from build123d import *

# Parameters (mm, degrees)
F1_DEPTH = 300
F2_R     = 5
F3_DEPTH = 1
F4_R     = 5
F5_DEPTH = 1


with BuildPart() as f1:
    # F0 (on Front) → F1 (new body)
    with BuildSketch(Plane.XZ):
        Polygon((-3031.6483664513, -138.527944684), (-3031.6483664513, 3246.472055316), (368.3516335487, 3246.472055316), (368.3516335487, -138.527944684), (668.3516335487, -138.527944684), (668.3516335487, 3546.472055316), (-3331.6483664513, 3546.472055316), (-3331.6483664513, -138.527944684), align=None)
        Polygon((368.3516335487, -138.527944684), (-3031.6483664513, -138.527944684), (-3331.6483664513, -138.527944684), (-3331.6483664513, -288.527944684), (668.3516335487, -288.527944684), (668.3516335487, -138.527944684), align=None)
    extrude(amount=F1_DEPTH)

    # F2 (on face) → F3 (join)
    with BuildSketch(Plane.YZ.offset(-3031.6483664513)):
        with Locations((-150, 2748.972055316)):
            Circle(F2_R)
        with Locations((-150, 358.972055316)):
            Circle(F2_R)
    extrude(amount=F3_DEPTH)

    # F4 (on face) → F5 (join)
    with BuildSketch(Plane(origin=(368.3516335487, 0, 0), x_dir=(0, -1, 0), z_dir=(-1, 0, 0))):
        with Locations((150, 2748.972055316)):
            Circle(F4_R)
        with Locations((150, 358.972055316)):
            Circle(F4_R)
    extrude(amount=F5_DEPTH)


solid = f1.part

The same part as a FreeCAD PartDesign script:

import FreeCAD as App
import Part
import Sketcher

V = App.Vector


def add_polygon(sketch, points):
    """Adds a closed chain of lines whose ends are joined by coincident constraints."""
    first, n = sketch.GeometryCount, len(points)
    for a, b in zip(points, points[1:] + points[:1]):
        sketch.addGeometry(Part.LineSegment(App.Vector(*a, 0), App.Vector(*b, 0)), False)
    for i in range(n):
        sketch.addConstraint(Sketcher.Constraint("Coincident", first + i, 2, first + (i + 1) % n, 1))

doc = App.newDocument("Part")
body = doc.addObject("PartDesign::Body", "Body")

# Sketch on XZ plane
sketch1 = body.newObject("Sketcher::SketchObject", "Sketch")
sketch1.AttachmentSupport = (doc.getObject("XZ_Plane"), [""])
sketch1.MapMode = "FlatFace"
add_polygon(sketch1, [(668, 3546), (-3332, 3546), (-3332, -289), (668, -289)])  # lines 0-3
add_polygon(sketch1, [(-3032, -139), (-3032, 3246), (368, 3246), (368, -139)])  # lines 4-7
sketch1.addConstraint(Sketcher.Constraint("Horizontal", 0))
sketch1.addConstraint(Sketcher.Constraint("Vertical", 1))
sketch1.addConstraint(Sketcher.Constraint("Horizontal", 2))
sketch1.addConstraint(Sketcher.Constraint("Vertical", 3))
sketch1.addConstraint(Sketcher.Constraint("Vertical", 4))
sketch1.addConstraint(Sketcher.Constraint("Horizontal", 5))
sketch1.addConstraint(Sketcher.Constraint("Vertical", 6))
sketch1.addConstraint(Sketcher.Constraint("Horizontal", 7))
sketch1.addConstraint(Sketcher.Constraint("DistanceX", 0, 2, 0, 1, 4000.0))
sketch1.addConstraint(Sketcher.Constraint("DistanceX", 5, 1, 5, 2, 3400.0))
sketch1.addConstraint(Sketcher.Constraint("DistanceY", 1, 2, 1, 1, 3835.0))
sketch1.addConstraint(Sketcher.Constraint("DistanceY", 4, 1, 4, 2, 3385.0))
sketch1.addConstraint(Sketcher.Constraint("DistanceX", 0, 2, 4, 2, 300.0))
sketch1.addConstraint(Sketcher.Constraint("DistanceY", 4, 2, 0, 2, 300.0))
sketch1.addConstraint(Sketcher.Constraint("DistanceX", 0, 2, -1, 1, 3331.648366))
sketch1.addConstraint(Sketcher.Constraint("DistanceY", -1, 1, 0, 2, 3546.472055))
pad1 = body.newObject("PartDesign::Pad", "Pad")
pad1.Profile = sketch1
pad1.Length = 300

# Sketch on YZ plane
sketch2 = body.newObject("Sketcher::SketchObject", "Sketch001")
sketch2.AttachmentSupport = (doc.getObject("YZ_Plane"), [""])
sketch2.MapMode = "FlatFace"
sketch2.AttachmentOffset = App.Placement(V(0, 0, -3031.648366), App.Rotation())
sketch2.addGeometry(Part.Circle(V(-150, 2749, 0), V(0, 0, 1), 5), False)
sketch2.addGeometry(Part.Circle(V(-150, 359, 0), V(0, 0, 1), 5), False)
sketch2.addConstraint(Sketcher.Constraint("Equal", 0, 1))
sketch2.addConstraint(Sketcher.Constraint("Vertical", 0, 3, 1, 3))
sketch2.addConstraint(Sketcher.Constraint("Diameter", 0, 10.0))
sketch2.addConstraint(Sketcher.Constraint("DistanceX", 0, 3, -1, 1, 150.0))
sketch2.addConstraint(Sketcher.Constraint("DistanceY", 1, 3, 0, 3, 2390.0))
sketch2.addConstraint(Sketcher.Constraint("DistanceY", -1, 1, 0, 3, 2748.972055))
pad2 = body.newObject("PartDesign::Pad", "Pad001")
pad2.Profile = sketch2
pad2.Length = 1

# Sketch on YZ plane
sketch3 = body.newObject("Sketcher::SketchObject", "Sketch002")
sketch3.AttachmentSupport = (doc.getObject("YZ_Plane"), [""])
sketch3.MapMode = "FlatFace"
sketch3.AttachmentOffset = App.Placement(V(0, 0, 368.351634), App.Rotation())
sketch3.addGeometry(Part.Circle(V(-150, 2749, 0), V(0, 0, 1), 5), False)
sketch3.addGeometry(Part.Circle(V(-150, 359, 0), V(0, 0, 1), 5), False)
sketch3.addConstraint(Sketcher.Constraint("Equal", 0, 1))
sketch3.addConstraint(Sketcher.Constraint("Vertical", 0, 3, 1, 3))
sketch3.addConstraint(Sketcher.Constraint("Diameter", 0, 10.0))
sketch3.addConstraint(Sketcher.Constraint("DistanceX", 0, 3, -1, 1, 150.0))
sketch3.addConstraint(Sketcher.Constraint("DistanceY", 1, 3, 0, 3, 2390.0))
sketch3.addConstraint(Sketcher.Constraint("DistanceY", -1, 1, 0, 3, 2748.972055))
pad3 = body.newObject("PartDesign::Pad", "Pad002")
pad3.Profile = sketch3
pad3.Length = 1
pad3.Reversed = True

doc.recompute()
